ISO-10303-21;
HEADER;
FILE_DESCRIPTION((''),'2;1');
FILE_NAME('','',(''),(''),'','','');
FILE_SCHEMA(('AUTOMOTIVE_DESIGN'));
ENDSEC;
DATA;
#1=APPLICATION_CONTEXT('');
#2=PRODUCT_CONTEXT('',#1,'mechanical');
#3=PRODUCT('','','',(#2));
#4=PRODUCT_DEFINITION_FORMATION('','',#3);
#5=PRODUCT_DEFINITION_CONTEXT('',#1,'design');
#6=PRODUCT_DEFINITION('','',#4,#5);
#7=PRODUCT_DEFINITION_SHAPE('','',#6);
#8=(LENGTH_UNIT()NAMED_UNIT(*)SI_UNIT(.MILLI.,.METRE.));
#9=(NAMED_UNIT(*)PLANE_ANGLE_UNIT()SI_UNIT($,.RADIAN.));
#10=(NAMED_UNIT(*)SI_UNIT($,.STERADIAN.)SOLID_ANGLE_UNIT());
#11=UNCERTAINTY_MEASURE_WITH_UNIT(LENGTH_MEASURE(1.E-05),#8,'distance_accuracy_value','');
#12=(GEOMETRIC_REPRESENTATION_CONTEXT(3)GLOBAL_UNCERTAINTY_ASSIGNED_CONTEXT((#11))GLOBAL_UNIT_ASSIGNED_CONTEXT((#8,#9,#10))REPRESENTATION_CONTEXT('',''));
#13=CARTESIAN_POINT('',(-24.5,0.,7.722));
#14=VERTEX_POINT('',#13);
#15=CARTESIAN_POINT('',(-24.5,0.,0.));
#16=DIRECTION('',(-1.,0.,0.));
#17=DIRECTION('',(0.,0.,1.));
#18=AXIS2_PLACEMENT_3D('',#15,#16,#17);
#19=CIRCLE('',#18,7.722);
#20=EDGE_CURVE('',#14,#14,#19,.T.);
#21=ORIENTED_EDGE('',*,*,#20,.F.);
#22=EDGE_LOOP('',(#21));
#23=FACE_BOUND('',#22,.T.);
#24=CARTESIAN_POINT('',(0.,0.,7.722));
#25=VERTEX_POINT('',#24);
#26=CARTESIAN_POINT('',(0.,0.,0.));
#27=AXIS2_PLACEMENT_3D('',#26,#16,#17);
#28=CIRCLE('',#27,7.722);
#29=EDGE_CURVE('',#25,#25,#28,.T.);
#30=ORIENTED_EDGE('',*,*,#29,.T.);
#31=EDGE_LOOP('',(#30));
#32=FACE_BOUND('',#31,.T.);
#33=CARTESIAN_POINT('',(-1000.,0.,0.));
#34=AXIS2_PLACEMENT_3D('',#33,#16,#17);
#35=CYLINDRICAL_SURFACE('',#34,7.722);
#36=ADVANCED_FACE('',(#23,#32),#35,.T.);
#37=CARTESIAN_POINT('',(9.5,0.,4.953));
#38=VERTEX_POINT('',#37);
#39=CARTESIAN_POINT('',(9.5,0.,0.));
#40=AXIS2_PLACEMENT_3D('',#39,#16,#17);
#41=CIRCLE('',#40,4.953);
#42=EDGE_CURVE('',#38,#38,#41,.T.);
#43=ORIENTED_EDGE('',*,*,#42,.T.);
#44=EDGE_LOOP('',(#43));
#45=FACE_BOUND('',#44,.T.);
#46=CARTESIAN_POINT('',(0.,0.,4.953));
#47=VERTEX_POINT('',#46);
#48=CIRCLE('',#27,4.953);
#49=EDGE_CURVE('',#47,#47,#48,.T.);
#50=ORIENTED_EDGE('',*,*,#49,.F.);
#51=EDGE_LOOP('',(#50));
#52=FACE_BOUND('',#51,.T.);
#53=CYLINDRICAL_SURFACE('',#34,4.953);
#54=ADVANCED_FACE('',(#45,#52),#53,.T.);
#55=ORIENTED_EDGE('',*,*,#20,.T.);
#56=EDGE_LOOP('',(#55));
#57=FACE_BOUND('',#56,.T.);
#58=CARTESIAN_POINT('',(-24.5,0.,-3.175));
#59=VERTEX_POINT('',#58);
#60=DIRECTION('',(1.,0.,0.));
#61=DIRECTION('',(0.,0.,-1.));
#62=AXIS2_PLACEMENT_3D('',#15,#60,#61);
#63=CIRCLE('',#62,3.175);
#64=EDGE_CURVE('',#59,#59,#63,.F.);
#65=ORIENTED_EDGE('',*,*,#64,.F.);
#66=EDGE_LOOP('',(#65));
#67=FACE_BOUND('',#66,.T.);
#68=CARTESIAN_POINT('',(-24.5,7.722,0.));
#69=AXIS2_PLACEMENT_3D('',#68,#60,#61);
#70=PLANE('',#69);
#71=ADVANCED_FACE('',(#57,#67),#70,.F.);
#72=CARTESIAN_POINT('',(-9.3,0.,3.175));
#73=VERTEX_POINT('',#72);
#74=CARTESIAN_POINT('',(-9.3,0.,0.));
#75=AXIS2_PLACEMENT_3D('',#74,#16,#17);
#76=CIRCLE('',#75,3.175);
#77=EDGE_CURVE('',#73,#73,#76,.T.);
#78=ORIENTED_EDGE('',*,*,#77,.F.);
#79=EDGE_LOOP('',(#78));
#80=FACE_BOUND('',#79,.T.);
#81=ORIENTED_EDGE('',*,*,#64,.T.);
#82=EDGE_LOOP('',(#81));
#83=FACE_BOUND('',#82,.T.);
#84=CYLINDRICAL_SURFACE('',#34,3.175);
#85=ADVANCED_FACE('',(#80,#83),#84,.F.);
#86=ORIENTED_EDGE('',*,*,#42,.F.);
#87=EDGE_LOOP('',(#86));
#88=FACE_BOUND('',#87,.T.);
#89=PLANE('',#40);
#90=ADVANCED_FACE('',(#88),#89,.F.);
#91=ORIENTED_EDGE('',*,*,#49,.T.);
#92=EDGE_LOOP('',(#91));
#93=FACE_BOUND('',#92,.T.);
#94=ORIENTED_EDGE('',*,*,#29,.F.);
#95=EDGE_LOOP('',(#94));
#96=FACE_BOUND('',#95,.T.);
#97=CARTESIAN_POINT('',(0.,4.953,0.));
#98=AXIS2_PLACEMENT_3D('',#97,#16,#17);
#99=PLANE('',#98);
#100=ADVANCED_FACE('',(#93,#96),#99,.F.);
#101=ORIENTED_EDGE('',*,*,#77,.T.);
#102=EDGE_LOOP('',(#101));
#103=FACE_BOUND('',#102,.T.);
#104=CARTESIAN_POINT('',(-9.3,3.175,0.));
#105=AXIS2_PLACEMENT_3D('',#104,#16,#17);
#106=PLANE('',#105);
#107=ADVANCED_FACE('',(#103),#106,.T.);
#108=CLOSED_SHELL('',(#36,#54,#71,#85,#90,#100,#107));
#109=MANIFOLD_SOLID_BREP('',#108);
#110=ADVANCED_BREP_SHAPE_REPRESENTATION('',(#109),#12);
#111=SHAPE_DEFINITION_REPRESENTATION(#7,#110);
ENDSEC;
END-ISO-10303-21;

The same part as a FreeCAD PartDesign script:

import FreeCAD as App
import Part
import Sketcher
from FreeCAD import Vector

doc = App.newDocument("Part")
body = doc.addObject("PartDesign::Body", "Body")

sketch1 = body.newObject("Sketcher::SketchObject", "Sketch")
sketch1.AttachmentSupport = (doc.getObject("XY_Plane"), [""])
sketch1.MapMode = "FlatFace"
sketch1.addGeometry(Part.LineSegment(Vector(9.5, 0, 0), Vector(9.5, 4.953, 0)), False)
sketch1.addGeometry(Part.LineSegment(Vector(9.5, 4.953, 0), Vector(0, 4.953, 0)), False)
sketch1.addGeometry(Part.LineSegment(Vector(0, 4.953, 0), Vector(0, 7.722, 0)), False)
sketch1.addGeometry(Part.LineSegment(Vector(0, 7.722, 0), Vector(-24.5, 7.722, 0)), False)
sketch1.addGeometry(Part.LineSegment(Vector(-24.5, 7.722, 0), Vector(-24.5, 0, 0)), False)
sketch1.addGeometry(Part.LineSegment(Vector(-24.5, 0, 0), Vector(9.5, 0, 0)), False)
sketch1.addConstraint(Sketcher.Constraint("Coincident", 0, 2, 1, 1))
sketch1.addConstraint(Sketcher.Constraint("Coincident", 1, 2, 2, 1))
sketch1.addConstraint(Sketcher.Constraint("Coincident", 2, 2, 3, 1))
sketch1.addConstraint(Sketcher.Constraint("Coincident", 3, 2, 4, 1))
sketch1.addConstraint(Sketcher.Constraint("Coincident", 4, 2, 5, 1))
sketch1.addConstraint(Sketcher.Constraint("Coincident", 5, 2, 0, 1))
sketch1.addConstraint(Sketcher.Constraint("Vertical", 0))
sketch1.addConstraint(Sketcher.Constraint("Horizontal", 1))
sketch1.addConstraint(Sketcher.Constraint("Vertical", 2))
sketch1.addConstraint(Sketcher.Constraint("Horizontal", 3))
sketch1.addConstraint(Sketcher.Constraint("Vertical", 4))
sketch1.addConstraint(Sketcher.Constraint("Horizontal", 5))
sketch1.addConstraint(Sketcher.Constraint("PointOnObject", 1, 2, -2))
sketch1.addConstraint(Sketcher.Constraint("PointOnObject", 4, 2, -1))
sketch1.addConstraint(Sketcher.Constraint("DistanceX", 5, 1, 5, 2, 34.0))
sketch1.addConstraint(Sketcher.Constraint("DistanceX", 1, 2, 1, 1, 9.5))
sketch1.addConstraint(Sketcher.Constraint("DistanceY", 0, 1, 0, 2, 4.953))
sketch1.addConstraint(Sketcher.Constraint("DistanceY", 2, 1, 2, 2, 2.769))
revolution = body.newObject("PartDesign::Revolution", "Revolution")
revolution.Profile = sketch1
revolution.ReferenceAxis = (sketch1, ["H_Axis"])
revolution.Angle = 360

sketch2 = body.newObject("Sketcher::SketchObject", "Sketch001")
sketch2.AttachmentSupport = (doc.getObject("XY_Plane"), [""])
sketch2.MapMode = "FlatFace"
sketch2.addGeometry(Part.LineSegment(Vector(-25.5, 3.175, 0), Vector(-25.5, 0, 0)), False)
sketch2.addGeometry(Part.LineSegment(Vector(-25.5, 0, 0), Vector(-9.3, 0, 0)), False)
sketch2.addGeometry(Part.LineSegment(Vector(-9.3, 0, 0), Vector(-9.3, 3.175, 0)), False)
sketch2.addGeometry(Part.LineSegment(Vector(-9.3, 3.175, 0), Vector(-25.5, 3.175, 0)), False)
sketch2.addConstraint(Sketcher.Constraint("Coincident", 0, 2, 1, 1))
sketch2.addConstraint(Sketcher.Constraint("Coincident", 1, 2, 2, 1))
sketch2.addConstraint(Sketcher.Constraint("Coincident", 2, 2, 3, 1))
sketch2.addConstraint(Sketcher.Constraint("Coincident", 3, 2, 0, 1))
sketch2.addConstraint(Sketcher.Constraint("Vertical", 0))
sketch2.addConstraint(Sketcher.Constraint("Horizontal", 1))
sketch2.addConstraint(Sketcher.Constraint("Vertical", 2))
sketch2.addConstraint(Sketcher.Constraint("Horizontal", 3))
sketch2.addConstraint(Sketcher.Constraint("PointOnObject", 0, 2, -1))
sketch2.addConstraint(Sketcher.Constraint("DistanceX", 1, 1, 1, 2, 16.2))
sketch2.addConstraint(Sketcher.Constraint("DistanceX", 0, 2, -1, 1, 25.5))
sketch2.addConstraint(Sketcher.Constraint("DistanceY", 0, 2, 0, 1, 3.175))
groove = body.newObject("PartDesign::Groove", "Groove")
groove.Profile = sketch2
groove.ReferenceAxis = (sketch2, ["H_Axis"])
groove.Angle = 360

doc.recompute()
